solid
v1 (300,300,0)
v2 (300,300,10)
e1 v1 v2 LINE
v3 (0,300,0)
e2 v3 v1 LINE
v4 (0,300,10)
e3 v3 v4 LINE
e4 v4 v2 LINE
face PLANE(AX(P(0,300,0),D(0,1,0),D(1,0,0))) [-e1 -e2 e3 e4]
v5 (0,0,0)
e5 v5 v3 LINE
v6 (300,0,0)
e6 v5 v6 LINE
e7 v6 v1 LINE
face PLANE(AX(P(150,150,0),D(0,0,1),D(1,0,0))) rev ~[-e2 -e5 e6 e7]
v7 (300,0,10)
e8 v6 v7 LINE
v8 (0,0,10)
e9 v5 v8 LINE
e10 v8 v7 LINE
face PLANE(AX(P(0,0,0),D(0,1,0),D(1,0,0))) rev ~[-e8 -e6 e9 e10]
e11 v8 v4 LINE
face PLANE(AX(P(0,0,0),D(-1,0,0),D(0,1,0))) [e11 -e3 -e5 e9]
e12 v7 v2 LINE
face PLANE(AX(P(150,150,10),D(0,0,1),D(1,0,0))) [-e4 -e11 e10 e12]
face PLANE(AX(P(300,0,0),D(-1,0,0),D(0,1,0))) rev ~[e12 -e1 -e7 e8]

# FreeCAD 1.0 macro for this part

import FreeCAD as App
import Part
import Sketcher

V = App.Vector
Q = App.Units.Quantity


def add_polygon(sketch, points):
    """Adds a closed chain of lines whose ends are joined by coincident constraints."""
    first, n = sketch.GeometryCount, len(points)
    for a, b in zip(points, points[1:] + points[:1]):
        sketch.addGeometry(Part.LineSegment(App.Vector(*a, 0), App.Vector(*b, 0)), False)
    for i in range(n):
        sketch.addConstraint(Sketcher.Constraint("Coincident", first + i, 2, first + (i + 1) % n, 1))

doc = App.newDocument("Part")
body = doc.addObject("PartDesign::Body", "Body")

# Sketch on XY plane
sketch1 = body.newObject("Sketcher::SketchObject", "Sketch")
sketch1.AttachmentSupport = (doc.getObject("XY_Plane"), [""])
sketch1.MapMode = "FlatFace"
add_polygon(sketch1, [(0, 300), (0, 0), (300, 0), (300, 300)])  # lines 0-3
sketch1.addConstraint([
    Sketcher.Constraint("Vertical", 0),
    Sketcher.Constraint("Horizontal", 1),
    Sketcher.Constraint("Vertical", 2),
    Sketcher.Constraint("Horizontal", 3),
    Sketcher.Constraint("Coincident", 0, 2, -1, 1),
    Sketcher.Constraint("Equal", 3, 0),
    Sketcher.Constraint("DistanceX", 1, 1, 1, 2, Q("300 mm")),
])
pad1 = body.newObject("PartDesign::Pad", "Pad")
pad1.Profile = sketch1
pad1.Length = 10

doc.recompute()
